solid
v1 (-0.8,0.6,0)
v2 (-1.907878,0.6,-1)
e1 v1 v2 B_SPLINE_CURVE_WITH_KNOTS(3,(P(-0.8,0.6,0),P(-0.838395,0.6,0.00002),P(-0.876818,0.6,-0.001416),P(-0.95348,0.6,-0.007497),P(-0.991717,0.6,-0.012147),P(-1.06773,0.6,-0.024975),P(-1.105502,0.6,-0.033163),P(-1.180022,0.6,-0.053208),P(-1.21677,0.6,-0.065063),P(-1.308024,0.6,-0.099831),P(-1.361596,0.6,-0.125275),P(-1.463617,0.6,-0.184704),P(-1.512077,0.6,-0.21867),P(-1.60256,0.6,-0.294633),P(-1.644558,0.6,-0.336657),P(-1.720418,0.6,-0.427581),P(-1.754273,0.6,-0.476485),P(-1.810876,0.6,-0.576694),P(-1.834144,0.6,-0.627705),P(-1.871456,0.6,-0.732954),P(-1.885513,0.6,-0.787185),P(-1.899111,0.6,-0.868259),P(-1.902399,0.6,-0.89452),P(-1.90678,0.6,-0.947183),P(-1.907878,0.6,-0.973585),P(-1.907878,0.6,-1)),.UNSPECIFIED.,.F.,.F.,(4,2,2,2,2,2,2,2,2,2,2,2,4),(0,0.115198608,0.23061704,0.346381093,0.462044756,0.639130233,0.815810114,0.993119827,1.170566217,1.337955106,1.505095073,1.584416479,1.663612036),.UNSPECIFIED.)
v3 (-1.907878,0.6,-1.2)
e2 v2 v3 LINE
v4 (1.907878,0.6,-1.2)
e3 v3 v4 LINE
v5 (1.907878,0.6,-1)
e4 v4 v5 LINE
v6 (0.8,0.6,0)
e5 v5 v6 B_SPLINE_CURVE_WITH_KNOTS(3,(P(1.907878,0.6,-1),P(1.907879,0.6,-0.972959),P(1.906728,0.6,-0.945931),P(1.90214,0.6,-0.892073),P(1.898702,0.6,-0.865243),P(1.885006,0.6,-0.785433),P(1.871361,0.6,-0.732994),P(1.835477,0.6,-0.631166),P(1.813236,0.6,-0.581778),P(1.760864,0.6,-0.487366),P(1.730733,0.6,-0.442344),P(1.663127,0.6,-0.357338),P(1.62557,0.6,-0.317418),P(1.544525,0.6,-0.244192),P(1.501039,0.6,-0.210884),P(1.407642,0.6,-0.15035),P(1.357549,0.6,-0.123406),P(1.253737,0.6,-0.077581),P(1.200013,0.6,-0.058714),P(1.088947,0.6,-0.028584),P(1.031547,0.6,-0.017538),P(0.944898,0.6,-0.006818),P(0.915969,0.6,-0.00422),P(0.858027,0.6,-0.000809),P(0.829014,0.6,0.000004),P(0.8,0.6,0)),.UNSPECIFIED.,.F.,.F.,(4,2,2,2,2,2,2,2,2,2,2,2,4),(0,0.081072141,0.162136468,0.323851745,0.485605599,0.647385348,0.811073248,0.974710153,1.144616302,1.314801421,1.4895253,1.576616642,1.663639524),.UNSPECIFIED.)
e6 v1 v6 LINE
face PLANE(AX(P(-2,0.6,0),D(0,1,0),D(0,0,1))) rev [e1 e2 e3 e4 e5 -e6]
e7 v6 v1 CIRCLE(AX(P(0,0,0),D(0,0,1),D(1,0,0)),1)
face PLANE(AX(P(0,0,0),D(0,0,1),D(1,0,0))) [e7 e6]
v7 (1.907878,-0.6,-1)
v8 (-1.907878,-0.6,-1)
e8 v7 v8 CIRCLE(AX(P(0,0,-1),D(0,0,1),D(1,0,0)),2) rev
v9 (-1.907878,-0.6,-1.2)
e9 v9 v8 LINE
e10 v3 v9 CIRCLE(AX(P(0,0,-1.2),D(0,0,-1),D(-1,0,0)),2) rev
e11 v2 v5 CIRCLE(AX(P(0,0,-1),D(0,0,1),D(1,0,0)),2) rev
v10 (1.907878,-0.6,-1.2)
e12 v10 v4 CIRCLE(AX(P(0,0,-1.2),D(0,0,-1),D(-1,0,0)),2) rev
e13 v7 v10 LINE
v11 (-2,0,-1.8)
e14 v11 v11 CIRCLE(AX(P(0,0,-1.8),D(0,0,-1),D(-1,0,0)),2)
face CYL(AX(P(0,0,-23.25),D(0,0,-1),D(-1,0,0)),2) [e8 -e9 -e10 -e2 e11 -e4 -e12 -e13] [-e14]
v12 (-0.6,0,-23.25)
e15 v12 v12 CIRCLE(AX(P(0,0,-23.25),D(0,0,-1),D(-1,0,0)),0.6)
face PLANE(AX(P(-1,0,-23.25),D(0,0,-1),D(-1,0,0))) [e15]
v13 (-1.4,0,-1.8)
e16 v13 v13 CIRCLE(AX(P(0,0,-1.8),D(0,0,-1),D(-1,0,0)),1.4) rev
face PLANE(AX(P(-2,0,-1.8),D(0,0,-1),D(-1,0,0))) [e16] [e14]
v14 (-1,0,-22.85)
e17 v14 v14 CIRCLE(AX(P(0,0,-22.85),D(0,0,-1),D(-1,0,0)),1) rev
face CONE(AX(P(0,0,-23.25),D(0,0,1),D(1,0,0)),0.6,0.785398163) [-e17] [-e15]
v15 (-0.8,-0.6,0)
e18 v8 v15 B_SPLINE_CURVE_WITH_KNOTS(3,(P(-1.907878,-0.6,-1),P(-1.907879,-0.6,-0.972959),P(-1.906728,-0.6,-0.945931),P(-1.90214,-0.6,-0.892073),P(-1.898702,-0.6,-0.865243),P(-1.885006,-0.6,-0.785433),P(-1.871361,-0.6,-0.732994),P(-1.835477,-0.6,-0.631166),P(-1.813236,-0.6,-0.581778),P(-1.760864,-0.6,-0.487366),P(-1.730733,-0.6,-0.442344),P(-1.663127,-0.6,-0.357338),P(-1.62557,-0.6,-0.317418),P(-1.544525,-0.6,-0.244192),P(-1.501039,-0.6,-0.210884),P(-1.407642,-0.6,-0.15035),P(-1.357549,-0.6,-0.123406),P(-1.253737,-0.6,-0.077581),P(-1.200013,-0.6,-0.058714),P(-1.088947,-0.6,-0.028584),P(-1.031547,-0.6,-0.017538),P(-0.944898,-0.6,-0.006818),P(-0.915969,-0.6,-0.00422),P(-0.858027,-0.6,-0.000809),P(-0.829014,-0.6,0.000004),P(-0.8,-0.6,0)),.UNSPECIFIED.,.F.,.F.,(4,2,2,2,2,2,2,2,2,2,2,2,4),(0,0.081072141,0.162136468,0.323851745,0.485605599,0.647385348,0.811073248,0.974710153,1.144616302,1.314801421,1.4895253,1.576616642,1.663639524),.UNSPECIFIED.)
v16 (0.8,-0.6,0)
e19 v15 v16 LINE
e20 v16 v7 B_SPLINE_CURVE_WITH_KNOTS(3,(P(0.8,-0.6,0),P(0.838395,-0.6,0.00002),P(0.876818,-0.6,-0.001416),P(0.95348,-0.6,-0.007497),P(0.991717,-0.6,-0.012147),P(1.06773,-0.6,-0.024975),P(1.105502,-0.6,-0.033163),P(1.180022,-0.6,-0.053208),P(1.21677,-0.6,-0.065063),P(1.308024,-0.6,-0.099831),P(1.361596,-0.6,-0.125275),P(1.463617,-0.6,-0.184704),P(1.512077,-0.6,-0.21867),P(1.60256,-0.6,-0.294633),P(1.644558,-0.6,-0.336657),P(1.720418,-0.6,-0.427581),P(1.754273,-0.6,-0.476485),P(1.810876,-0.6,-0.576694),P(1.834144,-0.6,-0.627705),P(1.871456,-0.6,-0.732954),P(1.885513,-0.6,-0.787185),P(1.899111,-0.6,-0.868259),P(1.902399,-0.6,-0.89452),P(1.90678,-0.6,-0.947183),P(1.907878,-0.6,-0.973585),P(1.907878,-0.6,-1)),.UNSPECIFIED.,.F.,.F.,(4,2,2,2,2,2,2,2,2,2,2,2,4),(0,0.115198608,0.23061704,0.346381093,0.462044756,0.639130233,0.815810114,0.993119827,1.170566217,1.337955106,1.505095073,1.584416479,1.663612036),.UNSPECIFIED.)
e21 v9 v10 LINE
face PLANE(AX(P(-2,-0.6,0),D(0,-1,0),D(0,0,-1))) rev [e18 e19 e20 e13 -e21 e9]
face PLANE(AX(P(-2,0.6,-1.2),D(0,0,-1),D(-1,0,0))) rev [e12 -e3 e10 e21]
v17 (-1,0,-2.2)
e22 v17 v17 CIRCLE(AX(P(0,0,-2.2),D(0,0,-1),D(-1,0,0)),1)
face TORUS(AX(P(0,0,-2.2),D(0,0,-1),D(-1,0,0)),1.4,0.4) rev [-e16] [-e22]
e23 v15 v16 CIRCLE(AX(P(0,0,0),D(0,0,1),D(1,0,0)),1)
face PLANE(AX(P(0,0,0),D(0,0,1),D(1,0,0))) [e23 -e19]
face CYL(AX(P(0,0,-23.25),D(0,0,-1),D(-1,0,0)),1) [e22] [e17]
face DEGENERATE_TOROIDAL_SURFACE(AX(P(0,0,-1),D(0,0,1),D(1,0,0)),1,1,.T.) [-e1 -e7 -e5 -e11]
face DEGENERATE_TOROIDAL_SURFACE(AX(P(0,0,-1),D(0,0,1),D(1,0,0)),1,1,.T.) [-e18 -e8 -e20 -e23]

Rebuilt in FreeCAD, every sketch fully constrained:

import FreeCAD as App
import Part
import Sketcher
from FreeCAD import Vector


def edges_at(feature, points):
    """Names of the edges that pass closest to the given points."""
    edges = feature.Shape.Edges
    near = lambda p: min(range(len(edges)), key=lambda i: edges[i].distToShape(Part.Vertex(*p))[0])
    return sorted({f"Edge{near(p) + 1}" for p in points})


def add_polygon(sketch, points):
    """Adds a closed chain of lines whose ends are joined by coincident constraints."""
    first, n = sketch.GeometryCount, len(points)
    for a, b in zip(points, points[1:] + points[:1]):
        sketch.addGeometry(Part.LineSegment(App.Vector(*a, 0), App.Vector(*b, 0)), False)
    for i in range(n):
        sketch.addConstraint(Sketcher.Constraint("Coincident", first + i, 2, first + (i + 1) % n, 1))

doc = App.newDocument("Part")
params = doc.addObject("Spreadsheet::Sheet", "Params")
for row, (alias, value) in enumerate([
    ("sketch1_width", "2 mm"),
    ("sketch1_height", "1.8 mm"),
    ("sketch1_height2", "23.25 mm"),
    ("revolution_angle", "360 deg"),
    ("sketch2_width", "1.2 mm"),
    ("chamfer_size", "0.4 mm"),
    ("fillet_radius", "1 mm"),
    ("fillet2_radius", "0.4 mm"),
], start=1):
    params.set(f"A{row}", alias)
    params.set(f"B{row}", "=" + value)
    params.setAlias(f"B{row}", alias)

body = doc.addObject("PartDesign::Body", "Body")

sketch1 = body.newObject("Sketcher::SketchObject", "Sketch")
sketch1.AttachmentSupport = (doc.getObject("XZ_Plane"), [""])
sketch1.MapMode = "FlatFace"
add_polygon(sketch1, [(-2, 0), (0, 0), (0, -23.2), (-1, -23.2), (-1, -1.8), (-2, -1.8)])
sketch1.addConstraint(Sketcher.Constraint("Horizontal", 0))
sketch1.addConstraint(Sketcher.Constraint("Vertical", 1))
sketch1.addConstraint(Sketcher.Constraint("Horizontal", 2))
sketch1.addConstraint(Sketcher.Constraint("Vertical", 3))
sketch1.addConstraint(Sketcher.Constraint("Horizontal", 4))
sketch1.addConstraint(Sketcher.Constraint("Vertical", 5))
sketch1.addConstraint(Sketcher.Constraint("Coincident", 0, 2, -1, 1))
sketch1.addConstraint(Sketcher.Constraint("Equal", 2, 4))
sketch1.addConstraint(Sketcher.Constraint("DistanceX", 0, 1, 0, 2, 2.0))
sketch1.addConstraint(Sketcher.Constraint("DistanceY", 5, 1, 5, 2, 1.8))
sketch1.addConstraint(Sketcher.Constraint("DistanceY", 1, 2, 1, 1, 23.25))
sketch1.setExpression("Constraints[14]", "Params.sketch1_width")
sketch1.setExpression("Constraints[15]", "Params.sketch1_height")
sketch1.setExpression("Constraints[16]", "Params.sketch1_height2")
revolution = body.newObject("PartDesign::Revolution", "Revolution")
revolution.Profile = sketch1
revolution.ReferenceAxis = (sketch1, ["V_Axis"])
revolution.setExpression("Angle", "Params.revolution_angle")

sketch2 = body.newObject("Sketcher::SketchObject", "Sketch001")
sketch2.AttachmentSupport = (doc.getObject("YZ_Plane"), [""])
sketch2.MapMode = "FlatFace"
add_polygon(sketch2, [(0.6, 0), (-0.6, 0), (-0.6, -1.2), (0.6, -1.2)])
sketch2.addConstraint(Sketcher.Constraint("Horizontal", 0))
sketch2.addConstraint(Sketcher.Constraint("Vertical", 1))
sketch2.addConstraint(Sketcher.Constraint("Horizontal", 2))
sketch2.addConstraint(Sketcher.Constraint("Vertical", 3))
sketch2.addConstraint(Sketcher.Constraint("Symmetric", 0, 2, 3, 2, -1, 1))
sketch2.addConstraint(Sketcher.Constraint("Equal", 2, 1))
sketch2.addConstraint(Sketcher.Constraint("DistanceX", 0, 2, 0, 1, 1.2))
sketch2.setExpression("Constraints[10]", "Params.sketch2_width")
pocket1 = body.newObject("PartDesign::Pocket", "Pocket")
pocket1.Profile = sketch2
pocket1.Type = "ThroughAll"
pocket1.Midplane = True
doc.recompute()

chamfer = body.newObject("PartDesign::Chamfer", "Chamfer")
chamfer.Base = (pocket1, edges_at(pocket1, [(1, 0, -23.25)]))
chamfer.setExpression("Size", "Params.chamfer_size")
doc.recompute()

fillet = body.newObject("PartDesign::Fillet", "Fillet")
fillet.Base = (chamfer, edges_at(chamfer, [(0, 2, 0), (0, -2, 0)]))
fillet.setExpression("Radius", "Params.fillet_radius")
doc.recompute()

fillet2 = body.newObject("PartDesign::Fillet", "Fillet001")
fillet2.Base = (fillet, edges_at(fillet, [(1, 0, -1.8)]))
fillet2.setExpression("Radius", "Params.fillet2_radius")

doc.recompute()
